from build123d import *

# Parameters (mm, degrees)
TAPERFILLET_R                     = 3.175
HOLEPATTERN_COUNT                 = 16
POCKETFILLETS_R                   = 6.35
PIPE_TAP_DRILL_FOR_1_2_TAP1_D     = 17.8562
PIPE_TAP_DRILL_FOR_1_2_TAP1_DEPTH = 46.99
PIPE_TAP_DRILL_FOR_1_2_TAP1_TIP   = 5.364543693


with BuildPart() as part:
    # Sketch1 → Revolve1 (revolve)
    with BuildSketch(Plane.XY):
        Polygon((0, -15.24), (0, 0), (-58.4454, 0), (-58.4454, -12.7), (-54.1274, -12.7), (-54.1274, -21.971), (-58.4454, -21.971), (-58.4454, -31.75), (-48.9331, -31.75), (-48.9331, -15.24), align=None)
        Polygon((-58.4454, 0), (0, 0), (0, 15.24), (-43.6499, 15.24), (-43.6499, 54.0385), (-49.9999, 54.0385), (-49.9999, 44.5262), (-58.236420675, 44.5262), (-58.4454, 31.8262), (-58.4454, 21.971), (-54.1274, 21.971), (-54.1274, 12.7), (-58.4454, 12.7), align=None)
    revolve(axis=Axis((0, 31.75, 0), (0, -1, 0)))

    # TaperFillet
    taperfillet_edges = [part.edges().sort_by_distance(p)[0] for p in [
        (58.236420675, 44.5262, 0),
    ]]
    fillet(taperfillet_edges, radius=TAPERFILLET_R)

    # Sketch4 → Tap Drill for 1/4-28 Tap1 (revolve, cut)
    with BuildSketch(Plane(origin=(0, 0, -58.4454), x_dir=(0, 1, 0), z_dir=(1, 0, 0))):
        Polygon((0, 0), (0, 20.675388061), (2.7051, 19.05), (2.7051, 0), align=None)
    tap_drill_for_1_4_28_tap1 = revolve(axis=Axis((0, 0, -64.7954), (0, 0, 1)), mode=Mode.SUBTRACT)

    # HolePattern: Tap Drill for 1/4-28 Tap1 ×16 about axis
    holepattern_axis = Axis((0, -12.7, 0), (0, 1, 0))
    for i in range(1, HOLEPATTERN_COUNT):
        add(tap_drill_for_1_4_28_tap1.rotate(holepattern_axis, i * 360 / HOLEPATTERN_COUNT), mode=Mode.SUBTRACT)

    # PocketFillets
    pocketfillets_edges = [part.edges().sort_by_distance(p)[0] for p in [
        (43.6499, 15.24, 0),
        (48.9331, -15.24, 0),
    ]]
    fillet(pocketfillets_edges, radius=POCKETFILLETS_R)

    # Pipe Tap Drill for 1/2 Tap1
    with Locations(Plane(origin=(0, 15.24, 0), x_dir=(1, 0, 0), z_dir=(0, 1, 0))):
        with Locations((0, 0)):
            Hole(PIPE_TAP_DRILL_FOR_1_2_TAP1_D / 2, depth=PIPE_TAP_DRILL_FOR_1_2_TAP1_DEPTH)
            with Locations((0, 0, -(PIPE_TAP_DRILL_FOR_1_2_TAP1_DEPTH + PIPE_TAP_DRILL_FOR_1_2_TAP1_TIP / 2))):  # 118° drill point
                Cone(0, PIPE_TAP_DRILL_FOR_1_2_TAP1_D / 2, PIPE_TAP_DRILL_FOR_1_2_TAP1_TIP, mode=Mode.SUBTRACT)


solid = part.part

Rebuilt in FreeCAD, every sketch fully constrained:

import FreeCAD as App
import Part
import Sketcher
Q = App.Units.Quantity


def edges_at(feature, points):
    """Names of the edges that pass closest to the given points."""
    edges = feature.Shape.Edges
    near = lambda p: min(range(len(edges)), key=lambda i: edges[i].distToShape(Part.Vertex(*p))[0])
    return sorted({f"Edge{near(p) + 1}" for p in points})

doc = App.newDocument("Part")
body = doc.addObject("PartDesign::Body", "Body")

# Sketch on XY plane
sketch1 = doc.addObject("Sketcher::SketchObject", "Sketch")
body.addObject(sketch1)
sketch1.AttachmentSupport = (doc.XY_Plane, [""])
sketch1.MapMode = "FlatFace"
sketch1.addGeometry(Part.LineSegment(App.Vector(0, -15.24, 0), App.Vector(0, 15.24, 0)), False)
sketch1.addGeometry(Part.LineSegment(App.Vector(0, 15.24, 0), App.Vector(-43.6499, 15.24, 0)), False)
sketch1.addGeometry(Part.LineSegment(App.Vector(-43.6499, 15.24, 0), App.Vector(-43.6499, 54.0385, 0)), False)
sketch1.addGeometry(Part.LineSegment(App.Vector(-43.6499, 54.0385, 0), App.Vector(-49.9999, 54.0385, 0)), False)
sketch1.addGeometry(Part.LineSegment(App.Vector(-49.9999, 54.0385, 0), App.Vector(-49.9999, 44.5262, 0)), False)
sketch1.addGeometry(Part.LineSegment(App.Vector(-49.9999, 44.5262, 0), App.Vector(-58.236421, 44.5262, 0)), False)
sketch1.addGeometry(Part.LineSegment(App.Vector(-58.236421, 44.5262, 0), App.Vector(-58.4454, 31.8262, 0)), False)
sketch1.addGeometry(Part.LineSegment(App.Vector(-58.4454, 31.8262, 0), App.Vector(-58.4454, 21.971, 0)), False)
sketch1.addGeometry(Part.LineSegment(App.Vector(-58.4454, 21.971, 0), App.Vector(-54.1274, 21.971, 0)), False)
sketch1.addGeometry(Part.LineSegment(App.Vector(-54.1274, 21.971, 0), App.Vector(-54.1274, 12.7, 0)), False)
sketch1.addGeometry(Part.LineSegment(App.Vector(-54.1274, 12.7, 0), App.Vector(-58.4454, 12.7, 0)), False)
sketch1.addGeometry(Part.LineSegment(App.Vector(-58.4454, 12.7, 0), App.Vector(-58.4454, -12.7, 0)), False)
sketch1.addGeometry(Part.LineSegment(App.Vector(-58.4454, -12.7, 0), App.Vector(-54.1274, -12.7, 0)), False)
sketch1.addGeometry(Part.LineSegment(App.Vector(-54.1274, -12.7, 0), App.Vector(-54.1274, -21.971, 0)), False)
sketch1.addGeometry(Part.LineSegment(App.Vector(-54.1274, -21.971, 0), App.Vector(-58.4454, -21.971, 0)), False)
sketch1.addGeometry(Part.LineSegment(App.Vector(-58.4454, -21.971, 0), App.Vector(-58.4454, -31.75, 0)), False)
sketch1.addGeometry(Part.LineSegment(App.Vector(-58.4454, -31.75, 0), App.Vector(-48.9331, -31.75, 0)), False)
sketch1.addGeometry(Part.LineSegment(App.Vector(-48.9331, -31.75, 0), App.Vector(-48.9331, -15.24, 0)), False)
sketch1.addGeometry(Part.LineSegment(App.Vector(-48.9331, -15.24, 0), App.Vector(0, -15.24, 0)), False)
sketch1.addConstraint(Sketcher.Constraint("Coincident", 0, 2, 1, 1))
sketch1.addConstraint(Sketcher.Constraint("Coincident", 1, 2, 2, 1))
sketch1.addConstraint(Sketcher.Constraint("Coincident", 2, 2, 3, 1))
sketch1.addConstraint(Sketcher.Constraint("Coincident", 3, 2, 4, 1))
sketch1.addConstraint(Sketcher.Constraint("Coincident", 4, 2, 5, 1))
sketch1.addConstraint(Sketcher.Constraint("Coincident", 5, 2, 6, 1))
sketch1.addConstraint(Sketcher.Constraint("Coincident", 6, 2, 7, 1))
sketch1.addConstraint(Sketcher.Constraint("Coincident", 7, 2, 8, 1))
sketch1.addConstraint(Sketcher.Constraint("Coincident", 8, 2, 9, 1))
sketch1.addConstraint(Sketcher.Constraint("Coincident", 9, 2, 10, 1))
sketch1.addConstraint(Sketcher.Constraint("Coincident", 10, 2, 11, 1))
sketch1.addConstraint(Sketcher.Constraint("Coincident", 11, 2, 12, 1))
sketch1.addConstraint(Sketcher.Constraint("Coincident", 12, 2, 13, 1))
sketch1.addConstraint(Sketcher.Constraint("Coincident", 13, 2, 14, 1))
sketch1.addConstraint(Sketcher.Constraint("Coincident", 14, 2, 15, 1))
sketch1.addConstraint(Sketcher.Constraint("Coincident", 15, 2, 16, 1))
sketch1.addConstraint(Sketcher.Constraint("Coincident", 16, 2, 17, 1))
sketch1.addConstraint(Sketcher.Constraint("Coincident", 17, 2, 18, 1))
sketch1.addConstraint(Sketcher.Constraint("Coincident", 18, 2, 0, 1))
sketch1.addConstraint(Sketcher.Constraint("Vertical", 0))
sketch1.addConstraint(Sketcher.Constraint("Horizontal", 1))
sketch1.addConstraint(Sketcher.Constraint("Vertical", 2))
sketch1.addConstraint(Sketcher.Constraint("Horizontal", 3))
sketch1.addConstraint(Sketcher.Constraint("Vertical", 4))
sketch1.addConstraint(Sketcher.Constraint("Horizontal", 5))
sketch1.addConstraint(Sketcher.Constraint("Vertical", 7))
sketch1.addConstraint(Sketcher.Constraint("Horizontal", 8))
sketch1.addConstraint(Sketcher.Constraint("Vertical", 9))
sketch1.addConstraint(Sketcher.Constraint("Horizontal", 10))
sketch1.addConstraint(Sketcher.Constraint("Vertical", 11))
sketch1.addConstraint(Sketcher.Constraint("Horizontal", 12))
sketch1.addConstraint(Sketcher.Constraint("Vertical", 13))
sketch1.addConstraint(Sketcher.Constraint("Horizontal", 14))
sketch1.addConstraint(Sketcher.Constraint("Vertical", 15))
sketch1.addConstraint(Sketcher.Constraint("Horizontal", 16))
sketch1.addConstraint(Sketcher.Constraint("Vertical", 17))
sketch1.addConstraint(Sketcher.Constraint("Horizontal", 18))
sketch1.addConstraint(Sketcher.Constraint("Symmetric", 0, 2, 18, 2, -1, 1))
sketch1.addConstraint(Sketcher.Constraint("Symmetric", 9, 2, 12, 2, -1))
sketch1.addConstraint(Sketcher.Constraint("Symmetric", 7, 2, 14, 2, -1))
sketch1.addConstraint(Sketcher.Constraint("Vertical", 7, 2, 10, 2))
sketch1.addConstraint(Sketcher.Constraint("Equal", 16, 4))
sketch1.addConstraint(Sketcher.Constraint("DistanceY", 11, 2, 11, 1, Q("1 in")))
sketch1.addConstraint(Sketcher.Constraint("DistanceY", 0, 1, 0, 2, Q("1.2 in")))
sketch1.addConstraint(Sketcher.Constraint("DistanceX", 3, 2, 3, 1, Q("0.25 in")))
sketch1.addConstraint(Sketcher.Constraint("DistanceX", 8, 1, 8, 2, Q("0.17 in")))
sketch1.addConstraint(Sketcher.Constraint("DistanceY", 17, 1, 17, 2, Q("0.65 in")))
sketch1.addConstraint(Sketcher.Constraint("DistanceY", 6, 2, 5, 2, Q("0.5 in")))
sketch1.addConstraint(Sketcher.Constraint("DistanceY", 7, 2, 7, 1, Q("0.388 in")))
sketch1.addConstraint(Sketcher.Constraint("DistanceY", 9, 2, 9, 1, Q("0.365 in")))
sketch1.addConstraint(Sketcher.Constraint("DistanceX", 1, 2, 1, 1, Q("1.7185 in")))
sketch1.addConstraint(Sketcher.Constraint("DistanceX", 16, 1, 16, 2, Q("0.3745 in")))
sketch1.addConstraint(Sketcher.Constraint("DistanceX", 18, 1, 18, 2, Q("1.9265 in")))
sketch1.addConstraint(Sketcher.Constraint("DistanceX", 5, 2, 5, 1, 8.236521))
revolution = doc.addObject("PartDesign::Revolution", "Revolution")
body.addObject(revolution)
revolution.Profile = sketch1
revolution.ReferenceAxis = (sketch1, ["V_Axis"])
revolution.Angle = 360
doc.recompute()

fillet = doc.addObject("PartDesign::Fillet", "Fillet")
body.addObject(fillet)
fillet.Base = (revolution, edges_at(revolution, [(58.236, 44.526, 0)]))
fillet.Radius = Q("0.125 in")

# Sketch on YZ plane
sketch2 = doc.addObject("Sketcher::SketchObject", "Sketch001")
body.addObject(sketch2)
sketch2.AttachmentSupport = (doc.YZ_Plane, [""])
sketch2.MapMode = "FlatFace"
sketch2.addGeometry(Part.LineSegment(App.Vector(0, -37.770012, 0), App.Vector(0, -58.4454, 0)), False)
sketch2.addGeometry(Part.LineSegment(App.Vector(0, -58.4454, 0), App.Vector(2.7051, -58.4454, 0)), False)
sketch2.addGeometry(Part.LineSegment(App.Vector(2.7051, -58.4454, 0), App.Vector(2.7051, -39.3954, 0)), False)
sketch2.addGeometry(Part.LineSegment(App.Vector(2.7051, -39.3954, 0), App.Vector(0, -37.770012, 0)), False)
sketch2.addConstraint(Sketcher.Constraint("Coincident", 0, 2, 1, 1))
sketch2.addConstraint(Sketcher.Constraint("Coincident", 1, 2, 2, 1))
sketch2.addConstraint(Sketcher.Constraint("Coincident", 2, 2, 3, 1))
sketch2.addConstraint(Sketcher.Constraint("Coincident", 3, 2, 0, 1))
sketch2.addConstraint(Sketcher.Constraint("Vertical", 0))
sketch2.addConstraint(Sketcher.Constraint("Horizontal", 1))
sketch2.addConstraint(Sketcher.Constraint("Vertical", 2))
sketch2.addConstraint(Sketcher.Constraint("PointOnObject", 0, 2, -2))
sketch2.addConstraint(Sketcher.Constraint("Angle", 3, Q("149 deg")))
sketch2.addConstraint(Sketcher.Constraint("DistanceY", 2, 1, 2, 2, Q("0.75 in")))
sketch2.addConstraint(Sketcher.Constraint("DistanceX", 1, 1, 1, 2, Q("0.1065 in")))
sketch2.addConstraint(Sketcher.Constraint("DistanceY", 0, 2, -1, 1, Q("2.301 in")))
groove = doc.addObject("PartDesign::Groove", "Groove")
body.addObject(groove)
groove.Profile = sketch2
groove.ReferenceAxis = (sketch2, ["V_Axis"])
groove.Angle = 360
doc.recompute()

polarpattern = doc.addObject("PartDesign::PolarPattern", "PolarPattern")
body.addObject(polarpattern)
polarpattern.Originals = [groove]
polarpattern.Axis = (doc.Y_Axis, [""])
polarpattern.Angle = 360
polarpattern.Occurrences = 16
body.Tip = polarpattern
doc.recompute()

fillet2 = doc.addObject("PartDesign::Fillet", "Fillet001")
body.addObject(fillet2)
fillet2.Base = (polarpattern, edges_at(polarpattern, [(43.65, 15.24, 0), (48.933, -15.24, 0)]))
fillet2.Radius = Q("0.25 in")

# Sketch on XZ plane
sketch3 = doc.addObject("Sketcher::SketchObject", "Sketch002")
body.addObject(sketch3)
sketch3.AttachmentSupport = (doc.XZ_Plane, [""])
sketch3.MapMode = "FlatFace"
sketch3.AttachmentOffset = App.Placement(App.Vector(0, 0, -0.6 * 25.4), App.Rotation())
sketch3.addGeometry(Part.Circle(App.Vector(0, 0, 0), App.Vector(0, 0, 1), 8.9281), False)
sketch3.addConstraint(Sketcher.Constraint("Coincident", 0, 3, -1, 1))
sketch3.addConstraint(Sketcher.Constraint("Diameter", 0, Q("0.703 in")))
doc.recompute()
hole = doc.addObject("PartDesign::Hole", "Hole")
body.addObject(hole)
hole.Profile = sketch3
hole.ThreadType = "None"
hole.Diameter = Q("0.703 in")
hole.DepthType = "Dimension"
hole.Depth = Q("1.85 in")
hole.DrillPoint = "Angled"
hole.DrillPointAngle = 118
hole.Reversed = True

doc.recompute()
